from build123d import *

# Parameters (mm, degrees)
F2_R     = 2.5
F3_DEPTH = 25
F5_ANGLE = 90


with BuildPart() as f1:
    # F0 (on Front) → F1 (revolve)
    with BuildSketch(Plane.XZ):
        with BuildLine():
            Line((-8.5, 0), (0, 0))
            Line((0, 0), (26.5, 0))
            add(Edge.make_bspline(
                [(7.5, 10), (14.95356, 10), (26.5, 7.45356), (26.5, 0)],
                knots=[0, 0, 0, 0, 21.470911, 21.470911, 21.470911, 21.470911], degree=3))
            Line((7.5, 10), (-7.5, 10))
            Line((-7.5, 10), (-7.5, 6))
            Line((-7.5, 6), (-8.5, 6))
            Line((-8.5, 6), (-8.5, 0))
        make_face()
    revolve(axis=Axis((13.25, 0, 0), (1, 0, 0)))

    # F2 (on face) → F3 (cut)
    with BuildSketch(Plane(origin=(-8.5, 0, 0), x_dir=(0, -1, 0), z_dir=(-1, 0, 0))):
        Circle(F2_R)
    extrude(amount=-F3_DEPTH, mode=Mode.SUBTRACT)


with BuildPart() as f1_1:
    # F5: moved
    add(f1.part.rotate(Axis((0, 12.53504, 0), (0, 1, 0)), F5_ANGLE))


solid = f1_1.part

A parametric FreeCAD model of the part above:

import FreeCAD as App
import Part
import Sketcher
from FreeCAD import Vector

doc = App.newDocument("Part")
body = doc.addObject("PartDesign::Body", "Body")

sketch1 = body.newObject("Sketcher::SketchObject", "Sketch")
sketch1.AttachmentSupport = (doc.getObject("XZ_Plane"), [""])
sketch1.MapMode = "FlatFace"
sketch1.addGeometry(Part.LineSegment(Vector(-8.5, 0, 0), Vector(26.5, 0, 0)), False)
sketch1.addGeometry(Part.BSplineCurve([Vector(7.5, 10, 0), Vector(14.95356, 10, 0), Vector(26.5, 7.45356, 0), Vector(26.5, 0, 0)], [4, 4], [0, 21.470911], False, 3, [1, 1, 1, 1], False), False)
sketch1.addGeometry(Part.LineSegment(Vector(7.5, 10, 0), Vector(-7.5, 10, 0)), False)
sketch1.addGeometry(Part.LineSegment(Vector(-7.5, 10, 0), Vector(-7.5, 6, 0)), False)
sketch1.addGeometry(Part.LineSegment(Vector(-7.5, 6, 0), Vector(-8.5, 6, 0)), False)
sketch1.addGeometry(Part.LineSegment(Vector(-8.5, 6, 0), Vector(-8.5, 0, 0)), False)
sketch1.addConstraint(Sketcher.Constraint("Block", 1))
sketch1.addConstraint(Sketcher.Constraint("Coincident", 0, 2, 1, 2))
sketch1.addConstraint(Sketcher.Constraint("Coincident", 1, 1, 2, 1))
sketch1.addConstraint(Sketcher.Constraint("Coincident", 2, 2, 3, 1))
sketch1.addConstraint(Sketcher.Constraint("Coincident", 3, 2, 4, 1))
sketch1.addConstraint(Sketcher.Constraint("Coincident", 4, 2, 5, 1))
sketch1.addConstraint(Sketcher.Constraint("Coincident", 5, 2, 0, 1))
sketch1.addConstraint(Sketcher.Constraint("Horizontal", 0))
sketch1.addConstraint(Sketcher.Constraint("Horizontal", 2))
sketch1.addConstraint(Sketcher.Constraint("Vertical", 3))
sketch1.addConstraint(Sketcher.Constraint("Horizontal", 4))
sketch1.addConstraint(Sketcher.Constraint("Vertical", 5))
sketch1.addConstraint(Sketcher.Constraint("DistanceX", 0, 1, 0, 2, 35.0))
sketch1.addConstraint(Sketcher.Constraint("DistanceX", 2, 2, 2, 1, 15.0))
sketch1.addConstraint(Sketcher.Constraint("DistanceY", 3, 2, 3, 1, 4.0))
revolution = body.newObject("PartDesign::Revolution", "Revolution")
revolution.Profile = sketch1
revolution.ReferenceAxis = (sketch1, ["H_Axis"])
revolution.Angle = 360

sketch2 = body.newObject("Sketcher::SketchObject", "Sketch001")
sketch2.AttachmentSupport = (doc.getObject("YZ_Plane"), [""])
sketch2.MapMode = "FlatFace"
sketch2.AttachmentOffset = App.Placement(Vector(0, 0, -8.5), App.Rotation())
sketch2.addGeometry(Part.Circle(Vector(0, 0, 0), Vector(0, 0, 1), 2.5), False)
sketch2.addConstraint(Sketcher.Constraint("Coincident", 0, 3, -1, 1))
sketch2.addConstraint(Sketcher.Constraint("Diameter", 0, 5.0))
pocket1 = body.newObject("PartDesign::Pocket", "Pocket")
pocket1.Profile = sketch2
pocket1.Length = 25
pocket1.Reversed = True
body2 = doc.addObject("PartDesign::Body", "Body001")
doc.recompute()

body.Placement = App.Placement(Vector(0, 0, 0), App.Rotation(Vector(0, 1, 0), 90))
boolean = body2.newObject("PartDesign::Boolean", "Boolean")
boolean.Type = "Fuse"
boolean.addObjects([body])

doc.recompute()
